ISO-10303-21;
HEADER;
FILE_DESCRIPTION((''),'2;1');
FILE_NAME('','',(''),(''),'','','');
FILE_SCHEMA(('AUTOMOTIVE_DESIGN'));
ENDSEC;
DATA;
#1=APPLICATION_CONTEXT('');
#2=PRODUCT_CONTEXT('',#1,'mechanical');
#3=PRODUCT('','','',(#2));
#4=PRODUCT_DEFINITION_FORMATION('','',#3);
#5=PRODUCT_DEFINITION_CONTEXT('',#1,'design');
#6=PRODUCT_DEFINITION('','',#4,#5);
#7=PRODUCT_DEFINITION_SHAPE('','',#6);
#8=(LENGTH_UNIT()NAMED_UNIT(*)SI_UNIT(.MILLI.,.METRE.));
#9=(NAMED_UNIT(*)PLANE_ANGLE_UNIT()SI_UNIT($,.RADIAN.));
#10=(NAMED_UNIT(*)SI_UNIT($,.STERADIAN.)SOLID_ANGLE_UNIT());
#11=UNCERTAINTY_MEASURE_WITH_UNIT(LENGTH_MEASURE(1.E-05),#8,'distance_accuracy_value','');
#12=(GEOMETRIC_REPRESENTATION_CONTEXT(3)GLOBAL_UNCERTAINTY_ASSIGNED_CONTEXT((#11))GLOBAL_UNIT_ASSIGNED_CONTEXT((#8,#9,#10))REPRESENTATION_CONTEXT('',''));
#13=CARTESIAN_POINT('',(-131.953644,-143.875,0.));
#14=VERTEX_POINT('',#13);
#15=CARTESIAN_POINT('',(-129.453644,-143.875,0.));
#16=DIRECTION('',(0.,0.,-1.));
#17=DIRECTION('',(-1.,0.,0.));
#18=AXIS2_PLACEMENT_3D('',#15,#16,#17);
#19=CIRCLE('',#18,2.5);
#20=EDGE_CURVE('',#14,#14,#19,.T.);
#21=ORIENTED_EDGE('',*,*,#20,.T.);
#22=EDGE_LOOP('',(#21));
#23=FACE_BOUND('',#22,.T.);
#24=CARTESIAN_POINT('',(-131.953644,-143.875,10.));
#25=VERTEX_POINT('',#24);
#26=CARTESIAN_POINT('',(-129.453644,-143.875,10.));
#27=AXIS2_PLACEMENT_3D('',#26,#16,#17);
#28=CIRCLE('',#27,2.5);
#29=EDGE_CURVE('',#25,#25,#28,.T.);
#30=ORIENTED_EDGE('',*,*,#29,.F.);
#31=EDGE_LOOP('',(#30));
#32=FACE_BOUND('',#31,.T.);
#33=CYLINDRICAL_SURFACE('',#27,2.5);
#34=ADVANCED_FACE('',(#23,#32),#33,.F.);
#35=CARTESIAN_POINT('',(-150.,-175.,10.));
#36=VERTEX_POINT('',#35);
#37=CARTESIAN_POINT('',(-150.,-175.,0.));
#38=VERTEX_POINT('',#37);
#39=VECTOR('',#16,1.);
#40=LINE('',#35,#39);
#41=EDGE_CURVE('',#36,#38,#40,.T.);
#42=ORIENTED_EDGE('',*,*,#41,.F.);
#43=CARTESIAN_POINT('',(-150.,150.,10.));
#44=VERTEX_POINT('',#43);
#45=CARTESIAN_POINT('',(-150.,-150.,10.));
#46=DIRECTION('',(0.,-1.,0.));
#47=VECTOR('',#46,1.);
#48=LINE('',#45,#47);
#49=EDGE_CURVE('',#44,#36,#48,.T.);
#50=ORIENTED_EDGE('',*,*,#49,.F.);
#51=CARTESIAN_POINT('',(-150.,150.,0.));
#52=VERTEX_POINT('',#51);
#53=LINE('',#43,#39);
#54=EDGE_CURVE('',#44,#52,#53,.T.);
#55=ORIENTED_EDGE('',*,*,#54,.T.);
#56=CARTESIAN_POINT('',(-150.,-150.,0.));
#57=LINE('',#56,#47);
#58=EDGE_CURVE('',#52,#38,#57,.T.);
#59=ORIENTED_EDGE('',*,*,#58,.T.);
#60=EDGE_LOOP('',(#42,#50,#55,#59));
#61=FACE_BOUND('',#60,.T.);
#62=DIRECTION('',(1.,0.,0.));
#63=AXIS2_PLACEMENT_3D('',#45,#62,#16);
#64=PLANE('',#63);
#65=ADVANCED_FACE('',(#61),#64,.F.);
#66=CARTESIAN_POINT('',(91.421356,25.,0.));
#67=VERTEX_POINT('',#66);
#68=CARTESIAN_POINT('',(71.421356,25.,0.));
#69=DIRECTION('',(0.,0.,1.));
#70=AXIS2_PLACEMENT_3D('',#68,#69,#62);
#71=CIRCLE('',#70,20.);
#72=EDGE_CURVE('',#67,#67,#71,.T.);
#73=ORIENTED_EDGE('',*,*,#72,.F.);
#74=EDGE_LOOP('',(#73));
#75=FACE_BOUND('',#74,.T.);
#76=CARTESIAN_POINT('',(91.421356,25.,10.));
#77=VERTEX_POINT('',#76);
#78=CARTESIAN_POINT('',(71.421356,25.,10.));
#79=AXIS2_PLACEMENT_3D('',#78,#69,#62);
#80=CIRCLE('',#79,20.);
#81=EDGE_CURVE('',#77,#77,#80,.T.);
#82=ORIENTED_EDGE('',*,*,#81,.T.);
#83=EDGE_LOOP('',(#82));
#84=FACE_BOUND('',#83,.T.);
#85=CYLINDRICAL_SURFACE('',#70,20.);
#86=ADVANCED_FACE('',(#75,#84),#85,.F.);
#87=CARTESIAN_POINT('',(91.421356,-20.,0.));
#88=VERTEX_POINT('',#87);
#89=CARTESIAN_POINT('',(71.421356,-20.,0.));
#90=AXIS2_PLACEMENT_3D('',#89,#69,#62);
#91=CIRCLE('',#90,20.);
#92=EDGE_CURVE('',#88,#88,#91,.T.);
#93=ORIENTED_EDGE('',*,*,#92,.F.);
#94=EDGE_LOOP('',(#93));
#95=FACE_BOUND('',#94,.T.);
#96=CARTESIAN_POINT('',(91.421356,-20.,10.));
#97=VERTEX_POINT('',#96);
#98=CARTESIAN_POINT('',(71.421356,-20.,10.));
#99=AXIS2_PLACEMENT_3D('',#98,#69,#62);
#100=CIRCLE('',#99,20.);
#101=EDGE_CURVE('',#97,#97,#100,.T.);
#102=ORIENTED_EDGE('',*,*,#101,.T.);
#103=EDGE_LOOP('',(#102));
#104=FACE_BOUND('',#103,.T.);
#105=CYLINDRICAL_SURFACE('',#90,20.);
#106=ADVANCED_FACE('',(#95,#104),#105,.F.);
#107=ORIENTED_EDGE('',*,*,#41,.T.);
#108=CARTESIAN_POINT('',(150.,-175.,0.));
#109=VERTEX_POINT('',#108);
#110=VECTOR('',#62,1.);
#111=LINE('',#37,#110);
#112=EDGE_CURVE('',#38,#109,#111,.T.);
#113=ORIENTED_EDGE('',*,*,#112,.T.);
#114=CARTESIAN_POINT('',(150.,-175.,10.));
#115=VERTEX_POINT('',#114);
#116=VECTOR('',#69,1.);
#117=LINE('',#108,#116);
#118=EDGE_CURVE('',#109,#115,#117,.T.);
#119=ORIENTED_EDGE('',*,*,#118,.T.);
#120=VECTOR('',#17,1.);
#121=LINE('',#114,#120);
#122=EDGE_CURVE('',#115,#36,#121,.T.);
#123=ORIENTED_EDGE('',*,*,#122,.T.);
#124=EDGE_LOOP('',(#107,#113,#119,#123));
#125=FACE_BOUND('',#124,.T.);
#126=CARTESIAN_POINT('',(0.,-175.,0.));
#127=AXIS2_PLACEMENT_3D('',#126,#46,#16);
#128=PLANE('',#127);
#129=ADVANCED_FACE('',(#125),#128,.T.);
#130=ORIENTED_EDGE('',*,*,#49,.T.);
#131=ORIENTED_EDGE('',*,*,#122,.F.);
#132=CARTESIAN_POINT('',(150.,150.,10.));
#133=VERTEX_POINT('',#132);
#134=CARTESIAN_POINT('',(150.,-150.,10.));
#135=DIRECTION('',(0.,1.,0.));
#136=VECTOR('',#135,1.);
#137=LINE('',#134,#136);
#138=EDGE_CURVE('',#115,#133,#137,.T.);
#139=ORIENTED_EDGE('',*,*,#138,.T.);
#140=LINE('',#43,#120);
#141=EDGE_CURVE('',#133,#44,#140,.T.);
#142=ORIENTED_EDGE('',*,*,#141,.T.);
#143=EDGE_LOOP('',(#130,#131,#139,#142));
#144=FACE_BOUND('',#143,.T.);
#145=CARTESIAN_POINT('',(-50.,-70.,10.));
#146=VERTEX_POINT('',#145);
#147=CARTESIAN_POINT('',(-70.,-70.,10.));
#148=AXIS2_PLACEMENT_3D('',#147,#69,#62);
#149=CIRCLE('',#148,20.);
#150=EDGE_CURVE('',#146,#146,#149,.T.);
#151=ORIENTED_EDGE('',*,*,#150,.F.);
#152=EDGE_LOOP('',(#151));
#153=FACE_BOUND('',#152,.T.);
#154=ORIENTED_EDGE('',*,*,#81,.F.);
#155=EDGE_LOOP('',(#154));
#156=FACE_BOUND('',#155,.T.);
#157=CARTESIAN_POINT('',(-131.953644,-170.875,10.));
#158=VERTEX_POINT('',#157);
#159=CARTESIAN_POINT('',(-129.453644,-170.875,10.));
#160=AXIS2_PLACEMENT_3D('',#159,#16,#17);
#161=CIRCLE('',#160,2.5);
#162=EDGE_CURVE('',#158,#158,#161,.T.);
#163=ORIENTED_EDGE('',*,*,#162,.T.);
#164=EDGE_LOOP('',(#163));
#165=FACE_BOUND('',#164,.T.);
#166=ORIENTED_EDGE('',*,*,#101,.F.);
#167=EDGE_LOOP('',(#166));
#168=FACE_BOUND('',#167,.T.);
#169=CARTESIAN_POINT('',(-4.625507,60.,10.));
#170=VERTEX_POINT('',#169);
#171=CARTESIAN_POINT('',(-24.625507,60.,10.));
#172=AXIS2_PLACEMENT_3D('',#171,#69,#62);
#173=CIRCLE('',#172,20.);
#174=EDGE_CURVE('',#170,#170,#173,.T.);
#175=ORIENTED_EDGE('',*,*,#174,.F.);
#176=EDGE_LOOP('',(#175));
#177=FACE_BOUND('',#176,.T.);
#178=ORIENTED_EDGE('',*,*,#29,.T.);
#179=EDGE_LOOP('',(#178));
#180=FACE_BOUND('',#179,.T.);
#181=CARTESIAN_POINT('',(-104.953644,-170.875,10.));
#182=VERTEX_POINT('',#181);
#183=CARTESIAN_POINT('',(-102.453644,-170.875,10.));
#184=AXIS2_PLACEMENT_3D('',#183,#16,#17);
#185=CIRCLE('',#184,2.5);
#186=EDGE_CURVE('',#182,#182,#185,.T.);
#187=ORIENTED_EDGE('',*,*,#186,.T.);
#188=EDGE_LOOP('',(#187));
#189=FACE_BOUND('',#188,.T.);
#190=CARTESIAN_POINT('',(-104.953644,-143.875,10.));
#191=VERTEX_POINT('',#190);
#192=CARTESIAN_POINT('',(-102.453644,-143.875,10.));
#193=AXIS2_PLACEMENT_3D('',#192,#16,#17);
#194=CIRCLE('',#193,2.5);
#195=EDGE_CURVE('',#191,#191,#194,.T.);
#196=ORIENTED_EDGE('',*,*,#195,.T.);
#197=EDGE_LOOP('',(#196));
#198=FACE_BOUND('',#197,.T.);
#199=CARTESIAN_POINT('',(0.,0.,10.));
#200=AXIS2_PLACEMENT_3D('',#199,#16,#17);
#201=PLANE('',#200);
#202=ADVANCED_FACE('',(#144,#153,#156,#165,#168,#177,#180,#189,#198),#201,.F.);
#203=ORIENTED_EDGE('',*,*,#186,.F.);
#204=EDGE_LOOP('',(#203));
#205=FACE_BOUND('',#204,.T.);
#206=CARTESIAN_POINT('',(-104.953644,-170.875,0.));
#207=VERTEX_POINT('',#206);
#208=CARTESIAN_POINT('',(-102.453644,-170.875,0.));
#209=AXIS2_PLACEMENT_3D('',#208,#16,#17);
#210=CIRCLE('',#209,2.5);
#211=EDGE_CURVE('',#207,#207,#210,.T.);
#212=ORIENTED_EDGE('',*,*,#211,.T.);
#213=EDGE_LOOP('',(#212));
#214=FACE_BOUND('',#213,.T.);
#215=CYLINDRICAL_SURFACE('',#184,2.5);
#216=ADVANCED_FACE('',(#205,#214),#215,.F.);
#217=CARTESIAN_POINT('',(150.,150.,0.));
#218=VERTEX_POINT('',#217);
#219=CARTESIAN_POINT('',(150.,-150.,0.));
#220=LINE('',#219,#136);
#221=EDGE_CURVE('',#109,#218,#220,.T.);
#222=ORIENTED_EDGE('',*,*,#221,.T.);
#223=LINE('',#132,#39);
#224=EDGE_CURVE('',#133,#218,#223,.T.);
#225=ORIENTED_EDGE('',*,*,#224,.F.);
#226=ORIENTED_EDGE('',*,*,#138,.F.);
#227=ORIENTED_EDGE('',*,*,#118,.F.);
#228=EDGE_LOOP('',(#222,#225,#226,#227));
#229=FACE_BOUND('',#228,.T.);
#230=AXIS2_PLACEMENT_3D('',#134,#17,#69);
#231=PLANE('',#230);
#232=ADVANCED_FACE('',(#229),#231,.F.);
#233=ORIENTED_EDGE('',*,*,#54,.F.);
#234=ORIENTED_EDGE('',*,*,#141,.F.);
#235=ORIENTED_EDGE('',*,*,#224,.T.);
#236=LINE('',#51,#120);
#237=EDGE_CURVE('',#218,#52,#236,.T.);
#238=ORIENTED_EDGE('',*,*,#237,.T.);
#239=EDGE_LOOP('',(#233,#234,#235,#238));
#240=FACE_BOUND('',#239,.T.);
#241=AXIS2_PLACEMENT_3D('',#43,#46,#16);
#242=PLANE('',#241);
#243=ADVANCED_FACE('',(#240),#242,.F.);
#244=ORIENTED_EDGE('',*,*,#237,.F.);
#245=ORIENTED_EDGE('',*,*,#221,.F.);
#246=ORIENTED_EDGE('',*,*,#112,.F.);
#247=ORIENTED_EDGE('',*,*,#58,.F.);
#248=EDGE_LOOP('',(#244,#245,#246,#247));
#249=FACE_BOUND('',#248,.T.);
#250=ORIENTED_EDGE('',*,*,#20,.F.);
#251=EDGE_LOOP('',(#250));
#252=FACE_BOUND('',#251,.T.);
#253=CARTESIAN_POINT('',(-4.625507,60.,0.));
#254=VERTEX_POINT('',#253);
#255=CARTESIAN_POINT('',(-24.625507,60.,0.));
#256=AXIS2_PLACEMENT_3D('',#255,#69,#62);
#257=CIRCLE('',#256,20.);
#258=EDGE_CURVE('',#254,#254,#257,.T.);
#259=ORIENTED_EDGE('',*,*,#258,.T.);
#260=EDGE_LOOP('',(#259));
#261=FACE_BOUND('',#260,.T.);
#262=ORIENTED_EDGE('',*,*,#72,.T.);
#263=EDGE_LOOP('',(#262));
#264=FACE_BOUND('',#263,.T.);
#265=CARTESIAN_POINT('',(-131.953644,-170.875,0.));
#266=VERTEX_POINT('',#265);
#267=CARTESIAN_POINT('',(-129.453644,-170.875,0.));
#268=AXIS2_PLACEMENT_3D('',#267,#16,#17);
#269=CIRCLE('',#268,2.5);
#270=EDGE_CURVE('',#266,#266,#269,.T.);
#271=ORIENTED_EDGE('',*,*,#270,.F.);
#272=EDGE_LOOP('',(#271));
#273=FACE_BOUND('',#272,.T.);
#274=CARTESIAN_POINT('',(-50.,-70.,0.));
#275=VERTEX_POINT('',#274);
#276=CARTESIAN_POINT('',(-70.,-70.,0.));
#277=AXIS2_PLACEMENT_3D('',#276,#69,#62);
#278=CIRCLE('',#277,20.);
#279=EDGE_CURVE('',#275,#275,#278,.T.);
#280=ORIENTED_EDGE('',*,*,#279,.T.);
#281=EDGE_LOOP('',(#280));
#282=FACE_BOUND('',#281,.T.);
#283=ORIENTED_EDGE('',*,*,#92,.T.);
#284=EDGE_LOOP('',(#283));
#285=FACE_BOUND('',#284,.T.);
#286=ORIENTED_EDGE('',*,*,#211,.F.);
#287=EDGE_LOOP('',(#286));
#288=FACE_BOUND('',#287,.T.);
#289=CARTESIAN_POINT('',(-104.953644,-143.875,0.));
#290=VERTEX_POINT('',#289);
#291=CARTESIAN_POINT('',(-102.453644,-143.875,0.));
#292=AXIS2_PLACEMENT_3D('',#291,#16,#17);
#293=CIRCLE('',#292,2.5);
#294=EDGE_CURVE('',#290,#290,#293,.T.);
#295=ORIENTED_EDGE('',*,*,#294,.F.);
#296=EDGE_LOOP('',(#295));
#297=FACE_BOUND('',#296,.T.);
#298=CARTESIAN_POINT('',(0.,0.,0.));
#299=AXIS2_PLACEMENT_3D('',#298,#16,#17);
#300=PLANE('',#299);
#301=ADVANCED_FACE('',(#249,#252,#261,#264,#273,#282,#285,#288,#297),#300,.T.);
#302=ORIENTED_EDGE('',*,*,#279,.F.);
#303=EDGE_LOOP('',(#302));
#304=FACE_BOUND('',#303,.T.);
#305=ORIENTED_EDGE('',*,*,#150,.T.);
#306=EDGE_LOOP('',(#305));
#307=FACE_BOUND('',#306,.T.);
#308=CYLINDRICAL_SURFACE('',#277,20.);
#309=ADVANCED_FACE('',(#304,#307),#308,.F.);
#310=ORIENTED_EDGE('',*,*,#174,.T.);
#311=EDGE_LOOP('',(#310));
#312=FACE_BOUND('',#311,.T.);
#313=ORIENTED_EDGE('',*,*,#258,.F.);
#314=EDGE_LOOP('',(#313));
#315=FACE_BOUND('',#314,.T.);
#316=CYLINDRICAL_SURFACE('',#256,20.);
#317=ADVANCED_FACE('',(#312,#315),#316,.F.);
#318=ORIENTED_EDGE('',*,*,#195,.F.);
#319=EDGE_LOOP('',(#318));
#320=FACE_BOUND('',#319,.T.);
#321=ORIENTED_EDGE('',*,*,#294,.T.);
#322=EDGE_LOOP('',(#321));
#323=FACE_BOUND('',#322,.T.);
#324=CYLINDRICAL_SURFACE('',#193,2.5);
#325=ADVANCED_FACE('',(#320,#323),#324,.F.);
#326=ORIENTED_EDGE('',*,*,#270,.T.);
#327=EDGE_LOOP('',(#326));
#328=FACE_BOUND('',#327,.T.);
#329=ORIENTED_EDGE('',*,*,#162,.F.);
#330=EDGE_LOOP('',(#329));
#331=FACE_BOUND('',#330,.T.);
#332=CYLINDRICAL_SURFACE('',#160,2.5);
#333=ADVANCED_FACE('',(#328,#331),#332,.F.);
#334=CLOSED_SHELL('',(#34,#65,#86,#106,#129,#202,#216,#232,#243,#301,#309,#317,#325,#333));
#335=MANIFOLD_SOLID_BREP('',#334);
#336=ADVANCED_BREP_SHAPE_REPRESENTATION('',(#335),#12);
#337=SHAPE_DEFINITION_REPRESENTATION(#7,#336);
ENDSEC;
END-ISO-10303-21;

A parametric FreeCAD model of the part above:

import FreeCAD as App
import Part
import Sketcher
Q = App.Units.Quantity


def add_polygon(sketch, points):
    """Adds a closed chain of lines whose ends are joined by coincident constraints."""
    first, n = sketch.GeometryCount, len(points)
    for a, b in zip(points, points[1:] + points[:1]):
        sketch.addGeometry(Part.LineSegment(App.Vector(*a, 0), App.Vector(*b, 0)), False)
    for i in range(n):
        sketch.addConstraint(Sketcher.Constraint("Coincident", first + i, 2, first + (i + 1) % n, 1))

doc = App.newDocument("Part")
params = doc.addObject("Spreadsheet::Sheet", "Params")
for row, (alias, value) in enumerate([
    ("sketch1_width", "300 mm"),
    ("pad1_length", "10 mm"),
    ("sketch2_diameter", "40 mm"),
    ("sketch3_width", "300 mm"),
    ("sketch3_height", "10 mm"),
    ("pad2_length", "25 mm"),
    ("sketch4_diameter", "5 mm"),
], start=1):
    params.set(f"A{row}", alias)
    params.set(f"B{row}", "=" + value)
    params.setAlias(f"B{row}", alias)

body = doc.addObject("PartDesign::Body", "Body")

sketch1 = body.newObject("Sketcher::SketchObject", "Sketch")
sketch1.AttachmentSupport = (doc.getObject("XY_Plane"), [""])
sketch1.MapMode = "FlatFace"
add_polygon(sketch1, [(-150, 150), (-150, -150), (150, -150), (150, 150)])
sketch1.addConstraint(Sketcher.Constraint("Vertical", 0))
sketch1.addConstraint(Sketcher.Constraint("Horizontal", 1))
sketch1.addConstraint(Sketcher.Constraint("Vertical", 2))
sketch1.addConstraint(Sketcher.Constraint("Horizontal", 3))
sketch1.addConstraint(Sketcher.Constraint("Symmetric", 0, 2, 2, 2, -1, 1))
sketch1.addConstraint(Sketcher.Constraint("Equal", 3, 0))
sketch1.addConstraint(Sketcher.Constraint("DistanceX", 1, 1, 1, 2, Q("300 mm")))
sketch1.setExpression("Constraints[10]", "Params.sketch1_width")
pad1 = body.newObject("PartDesign::Pad", "Pad")
pad1.Profile = sketch1
pad1.setExpression("Length", "Params.pad1_length")

sketch2 = body.newObject("Sketcher::SketchObject", "Sketch001")
sketch2.AttachmentSupport = (doc.getObject("XY_Plane"), [""])
sketch2.MapMode = "FlatFace"
sketch2.AttachmentOffset = App.Placement(App.Vector(0, 0, 10), App.Rotation())
sketch2.addGeometry(Part.Circle(App.Vector(-70, -70, 0), App.Vector(0, 0, 1), 20), False)
sketch2.addGeometry(Part.Circle(App.Vector(71, -20, 0), App.Vector(0, 0, 1), 20), False)
sketch2.addGeometry(Part.Circle(App.Vector(-25, 60, 0), App.Vector(0, 0, 1), 20), False)
sketch2.addGeometry(Part.Circle(App.Vector(71, 25, 0), App.Vector(0, 0, 1), 20), False)
sketch2.addConstraint(Sketcher.Constraint("Equal", 0, 1))
sketch2.addConstraint(Sketcher.Constraint("Equal", 1, 2))
sketch2.addConstraint(Sketcher.Constraint("Equal", 2, 3))
sketch2.addConstraint(Sketcher.Constraint("Vertical", 1, 3, 3, 3))
sketch2.addConstraint(Sketcher.Constraint("Diameter", 0, Q("40 mm")))
sketch2.addConstraint(Sketcher.Constraint("DistanceX", 0, 3, -1, 1, Q("70 mm")))
sketch2.addConstraint(Sketcher.Constraint("DistanceY", 0, 3, -1, 1, Q("70 mm")))
sketch2.addConstraint(Sketcher.Constraint("DistanceY", 1, 3, -1, 1, Q("20 mm")))
sketch2.addConstraint(Sketcher.Constraint("DistanceY", -1, 1, 2, 3, Q("60 mm")))
sketch2.addConstraint(Sketcher.Constraint("DistanceY", -1, 1, 3, 3, Q("25 mm")))
sketch2.addConstraint(Sketcher.Constraint("DistanceX", -1, 1, 1, 3, Q("71.421356 mm")))
sketch2.addConstraint(Sketcher.Constraint("DistanceX", 2, 3, -1, 1, Q("24.625507 mm")))
sketch2.setExpression("Constraints[4]", "Params.sketch2_diameter")
pocket1 = body.newObject("PartDesign::Pocket", "Pocket")
pocket1.Profile = sketch2
pocket1.Type = "ThroughAll"

sketch3 = body.newObject("Sketcher::SketchObject", "Sketch002")
sketch3.AttachmentSupport = (doc.getObject("XZ_Plane"), [""])
sketch3.MapMode = "FlatFace"
sketch3.AttachmentOffset = App.Placement(App.Vector(0, 0, 150), App.Rotation())
add_polygon(sketch3, [(-150, 10), (-150, 0), (150, 0), (150, 10)])
sketch3.addConstraint(Sketcher.Constraint("Vertical", 0))
sketch3.addConstraint(Sketcher.Constraint("Horizontal", 1))
sketch3.addConstraint(Sketcher.Constraint("Vertical", 2))
sketch3.addConstraint(Sketcher.Constraint("Horizontal", 3))
sketch3.addConstraint(Sketcher.Constraint("Symmetric", 0, 2, 1, 2, -1, 1))
sketch3.addConstraint(Sketcher.Constraint("DistanceX", 1, 1, 1, 2, Q("300 mm")))
sketch3.addConstraint(Sketcher.Constraint("DistanceY", 0, 2, 0, 1, Q("10 mm")))
sketch3.setExpression("Constraints[9]", "Params.sketch3_width")
sketch3.setExpression("Constraints[10]", "Params.sketch3_height")
pad2 = body.newObject("PartDesign::Pad", "Pad001")
pad2.Profile = sketch3
pad2.setExpression("Length", "Params.pad2_length")

sketch4 = body.newObject("Sketcher::SketchObject", "Sketch003")
sketch4.AttachmentSupport = (doc.getObject("XY_Plane"), [""])
sketch4.MapMode = "FlatFace"
sketch4.addGeometry(Part.Circle(App.Vector(-129.5, -143.9, 0), App.Vector(0, 0, 1), 2.5), False)
sketch4.addGeometry(Part.Circle(App.Vector(-102.5, -143.9, 0), App.Vector(0, 0, 1), 2.5), False)
sketch4.addGeometry(Part.Circle(App.Vector(-129.5, -170.9, 0), App.Vector(0, 0, 1), 2.5), False)
sketch4.addGeometry(Part.Circle(App.Vector(-102.5, -170.9, 0), App.Vector(0, 0, 1), 2.5), False)
sketch4.addConstraint(Sketcher.Constraint("Equal", 0, 1))
sketch4.addConstraint(Sketcher.Constraint("Equal", 1, 2))
sketch4.addConstraint(Sketcher.Constraint("Equal", 2, 3))
sketch4.addConstraint(Sketcher.Constraint("Horizontal", 0, 3, 1, 3))
sketch4.addConstraint(Sketcher.Constraint("Horizontal", 2, 3, 3, 3))
sketch4.addConstraint(Sketcher.Constraint("Vertical", 0, 3, 2, 3))
sketch4.addConstraint(Sketcher.Constraint("Vertical", 1, 3, 3, 3))
sketch4.addConstraint(Sketcher.Constraint("Diameter", 0, Q("5 mm")))
sketch4.addConstraint(Sketcher.Constraint("DistanceX", 0, 3, 1, 3, Q("27 mm")))
sketch4.addConstraint(Sketcher.Constraint("DistanceY", 2, 3, 0, 3, Q("27 mm")))
sketch4.addConstraint(Sketcher.Constraint("DistanceY", 0, 3, -1, 1, Q("143.875 mm")))
sketch4.addConstraint(Sketcher.Constraint("DistanceX", 0, 3, -1, 1, Q("129.453644 mm")))
sketch4.setExpression("Constraints[7]", "Params.sketch4_diameter")
pocket2 = body.newObject("PartDesign::Pocket", "Pocket001")
pocket2.Profile = sketch4
pocket2.Type = "ThroughAll"
pocket2.Reversed = True

doc.recompute()
